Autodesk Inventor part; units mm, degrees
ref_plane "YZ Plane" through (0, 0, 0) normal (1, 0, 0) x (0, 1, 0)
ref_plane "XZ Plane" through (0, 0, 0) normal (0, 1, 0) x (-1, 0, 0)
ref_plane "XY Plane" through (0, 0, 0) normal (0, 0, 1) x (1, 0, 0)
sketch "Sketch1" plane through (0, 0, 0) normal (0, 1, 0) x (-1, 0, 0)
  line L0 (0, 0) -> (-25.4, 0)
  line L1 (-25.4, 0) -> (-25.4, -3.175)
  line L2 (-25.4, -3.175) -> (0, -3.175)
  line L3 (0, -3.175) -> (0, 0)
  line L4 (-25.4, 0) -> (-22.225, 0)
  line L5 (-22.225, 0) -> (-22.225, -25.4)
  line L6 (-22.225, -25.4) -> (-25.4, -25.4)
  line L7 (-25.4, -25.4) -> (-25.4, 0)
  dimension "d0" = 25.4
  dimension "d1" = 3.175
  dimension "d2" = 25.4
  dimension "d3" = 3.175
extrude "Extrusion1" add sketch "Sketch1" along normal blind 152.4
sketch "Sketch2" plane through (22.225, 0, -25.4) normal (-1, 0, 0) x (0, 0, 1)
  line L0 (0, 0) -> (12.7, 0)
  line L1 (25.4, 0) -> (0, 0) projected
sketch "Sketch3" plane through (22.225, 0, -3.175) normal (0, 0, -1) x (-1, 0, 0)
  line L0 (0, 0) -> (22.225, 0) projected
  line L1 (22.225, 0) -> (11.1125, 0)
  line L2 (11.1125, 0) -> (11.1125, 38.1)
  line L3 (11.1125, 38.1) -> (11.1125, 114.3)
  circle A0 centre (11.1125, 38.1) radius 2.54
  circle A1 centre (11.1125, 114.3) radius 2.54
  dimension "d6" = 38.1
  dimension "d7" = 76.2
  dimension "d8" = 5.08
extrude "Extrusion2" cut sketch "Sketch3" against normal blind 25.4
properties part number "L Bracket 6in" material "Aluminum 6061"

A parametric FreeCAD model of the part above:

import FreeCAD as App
import Part
import Sketcher

V = App.Vector
Q = App.Units.Quantity


def add_polygon(sketch, points):
    """Adds a closed chain of lines whose ends are joined by coincident constraints."""
    first, n = sketch.GeometryCount, len(points)
    for a, b in zip(points, points[1:] + points[:1]):
        sketch.addGeometry(Part.LineSegment(App.Vector(*a, 0), App.Vector(*b, 0)), False)
    for i in range(n):
        sketch.addConstraint(Sketcher.Constraint("Coincident", first + i, 2, first + (i + 1) % n, 1))

doc = App.newDocument("Part")
body = doc.addObject("PartDesign::Body", "Body")

sketch1 = body.newObject("Sketcher::SketchObject", "Sketch")
sketch1.AttachmentSupport = (doc.getObject("XZ_Plane"), [""])
sketch1.MapMode = "FlatFace"
add_polygon(sketch1, [(0, -3.2), (0, 0), (25.4, 0), (25.4, -25.4), (22.2, -25.4), (22.2, -3.2)])
sketch1.addConstraint([
    Sketcher.Constraint("Vertical", 0),
    Sketcher.Constraint("Horizontal", 1),
    Sketcher.Constraint("Vertical", 2),
    Sketcher.Constraint("Horizontal", 3),
    Sketcher.Constraint("Vertical", 4),
    Sketcher.Constraint("Horizontal", 5),
    Sketcher.Constraint("Coincident", 0, 2, -1, 1),
    Sketcher.Constraint("Equal", 3, 0),
    Sketcher.Constraint("Equal", 1, 2),
    Sketcher.Constraint("DistanceX", 1, 1, 1, 2, Q("1 in")),
    Sketcher.Constraint("DistanceX", 3, 2, 3, 1, Q("0.125 in")),
])
pad1 = body.newObject("PartDesign::Pad", "Pad")
pad1.Profile = sketch1
pad1.Length = Q("6 in")
pad1.Reversed = True

sketch2 = body.newObject("Sketcher::SketchObject", "Sketch001")
sketch2.AttachmentSupport = (doc.getObject("XY_Plane"), [""])
sketch2.MapMode = "FlatFace"
sketch2.AttachmentOffset = App.Placement(V(0, 0, -0.125 * 25.4), App.Rotation())
sketch2.addGeometry([
    Part.Circle(V(11.1, 38.1, 0), V(0, 0, 1), 2.5),
    Part.Circle(V(11.1, 114.3, 0), V(0, 0, 1), 2.5),
], False)
sketch2.addConstraint([
    Sketcher.Constraint("Equal", 0, 1),
    Sketcher.Constraint("Vertical", 0, 3, 1, 3),
    Sketcher.Constraint("Diameter", 0, Q("0.2 in")),
    Sketcher.Constraint("DistanceY", 0, 3, 1, 3, Q("3 in")),
    Sketcher.Constraint("DistanceY", -1, 1, 0, 3, Q("1.5 in")),
    Sketcher.Constraint("DistanceX", -1, 1, 0, 3, Q("0.4375 in")),
])
pocket1 = body.newObject("PartDesign::Pocket", "Pocket")
pocket1.Profile = sketch2
pocket1.Length = Q("1 in")
pocket1.Reversed = True

doc.recompute()
